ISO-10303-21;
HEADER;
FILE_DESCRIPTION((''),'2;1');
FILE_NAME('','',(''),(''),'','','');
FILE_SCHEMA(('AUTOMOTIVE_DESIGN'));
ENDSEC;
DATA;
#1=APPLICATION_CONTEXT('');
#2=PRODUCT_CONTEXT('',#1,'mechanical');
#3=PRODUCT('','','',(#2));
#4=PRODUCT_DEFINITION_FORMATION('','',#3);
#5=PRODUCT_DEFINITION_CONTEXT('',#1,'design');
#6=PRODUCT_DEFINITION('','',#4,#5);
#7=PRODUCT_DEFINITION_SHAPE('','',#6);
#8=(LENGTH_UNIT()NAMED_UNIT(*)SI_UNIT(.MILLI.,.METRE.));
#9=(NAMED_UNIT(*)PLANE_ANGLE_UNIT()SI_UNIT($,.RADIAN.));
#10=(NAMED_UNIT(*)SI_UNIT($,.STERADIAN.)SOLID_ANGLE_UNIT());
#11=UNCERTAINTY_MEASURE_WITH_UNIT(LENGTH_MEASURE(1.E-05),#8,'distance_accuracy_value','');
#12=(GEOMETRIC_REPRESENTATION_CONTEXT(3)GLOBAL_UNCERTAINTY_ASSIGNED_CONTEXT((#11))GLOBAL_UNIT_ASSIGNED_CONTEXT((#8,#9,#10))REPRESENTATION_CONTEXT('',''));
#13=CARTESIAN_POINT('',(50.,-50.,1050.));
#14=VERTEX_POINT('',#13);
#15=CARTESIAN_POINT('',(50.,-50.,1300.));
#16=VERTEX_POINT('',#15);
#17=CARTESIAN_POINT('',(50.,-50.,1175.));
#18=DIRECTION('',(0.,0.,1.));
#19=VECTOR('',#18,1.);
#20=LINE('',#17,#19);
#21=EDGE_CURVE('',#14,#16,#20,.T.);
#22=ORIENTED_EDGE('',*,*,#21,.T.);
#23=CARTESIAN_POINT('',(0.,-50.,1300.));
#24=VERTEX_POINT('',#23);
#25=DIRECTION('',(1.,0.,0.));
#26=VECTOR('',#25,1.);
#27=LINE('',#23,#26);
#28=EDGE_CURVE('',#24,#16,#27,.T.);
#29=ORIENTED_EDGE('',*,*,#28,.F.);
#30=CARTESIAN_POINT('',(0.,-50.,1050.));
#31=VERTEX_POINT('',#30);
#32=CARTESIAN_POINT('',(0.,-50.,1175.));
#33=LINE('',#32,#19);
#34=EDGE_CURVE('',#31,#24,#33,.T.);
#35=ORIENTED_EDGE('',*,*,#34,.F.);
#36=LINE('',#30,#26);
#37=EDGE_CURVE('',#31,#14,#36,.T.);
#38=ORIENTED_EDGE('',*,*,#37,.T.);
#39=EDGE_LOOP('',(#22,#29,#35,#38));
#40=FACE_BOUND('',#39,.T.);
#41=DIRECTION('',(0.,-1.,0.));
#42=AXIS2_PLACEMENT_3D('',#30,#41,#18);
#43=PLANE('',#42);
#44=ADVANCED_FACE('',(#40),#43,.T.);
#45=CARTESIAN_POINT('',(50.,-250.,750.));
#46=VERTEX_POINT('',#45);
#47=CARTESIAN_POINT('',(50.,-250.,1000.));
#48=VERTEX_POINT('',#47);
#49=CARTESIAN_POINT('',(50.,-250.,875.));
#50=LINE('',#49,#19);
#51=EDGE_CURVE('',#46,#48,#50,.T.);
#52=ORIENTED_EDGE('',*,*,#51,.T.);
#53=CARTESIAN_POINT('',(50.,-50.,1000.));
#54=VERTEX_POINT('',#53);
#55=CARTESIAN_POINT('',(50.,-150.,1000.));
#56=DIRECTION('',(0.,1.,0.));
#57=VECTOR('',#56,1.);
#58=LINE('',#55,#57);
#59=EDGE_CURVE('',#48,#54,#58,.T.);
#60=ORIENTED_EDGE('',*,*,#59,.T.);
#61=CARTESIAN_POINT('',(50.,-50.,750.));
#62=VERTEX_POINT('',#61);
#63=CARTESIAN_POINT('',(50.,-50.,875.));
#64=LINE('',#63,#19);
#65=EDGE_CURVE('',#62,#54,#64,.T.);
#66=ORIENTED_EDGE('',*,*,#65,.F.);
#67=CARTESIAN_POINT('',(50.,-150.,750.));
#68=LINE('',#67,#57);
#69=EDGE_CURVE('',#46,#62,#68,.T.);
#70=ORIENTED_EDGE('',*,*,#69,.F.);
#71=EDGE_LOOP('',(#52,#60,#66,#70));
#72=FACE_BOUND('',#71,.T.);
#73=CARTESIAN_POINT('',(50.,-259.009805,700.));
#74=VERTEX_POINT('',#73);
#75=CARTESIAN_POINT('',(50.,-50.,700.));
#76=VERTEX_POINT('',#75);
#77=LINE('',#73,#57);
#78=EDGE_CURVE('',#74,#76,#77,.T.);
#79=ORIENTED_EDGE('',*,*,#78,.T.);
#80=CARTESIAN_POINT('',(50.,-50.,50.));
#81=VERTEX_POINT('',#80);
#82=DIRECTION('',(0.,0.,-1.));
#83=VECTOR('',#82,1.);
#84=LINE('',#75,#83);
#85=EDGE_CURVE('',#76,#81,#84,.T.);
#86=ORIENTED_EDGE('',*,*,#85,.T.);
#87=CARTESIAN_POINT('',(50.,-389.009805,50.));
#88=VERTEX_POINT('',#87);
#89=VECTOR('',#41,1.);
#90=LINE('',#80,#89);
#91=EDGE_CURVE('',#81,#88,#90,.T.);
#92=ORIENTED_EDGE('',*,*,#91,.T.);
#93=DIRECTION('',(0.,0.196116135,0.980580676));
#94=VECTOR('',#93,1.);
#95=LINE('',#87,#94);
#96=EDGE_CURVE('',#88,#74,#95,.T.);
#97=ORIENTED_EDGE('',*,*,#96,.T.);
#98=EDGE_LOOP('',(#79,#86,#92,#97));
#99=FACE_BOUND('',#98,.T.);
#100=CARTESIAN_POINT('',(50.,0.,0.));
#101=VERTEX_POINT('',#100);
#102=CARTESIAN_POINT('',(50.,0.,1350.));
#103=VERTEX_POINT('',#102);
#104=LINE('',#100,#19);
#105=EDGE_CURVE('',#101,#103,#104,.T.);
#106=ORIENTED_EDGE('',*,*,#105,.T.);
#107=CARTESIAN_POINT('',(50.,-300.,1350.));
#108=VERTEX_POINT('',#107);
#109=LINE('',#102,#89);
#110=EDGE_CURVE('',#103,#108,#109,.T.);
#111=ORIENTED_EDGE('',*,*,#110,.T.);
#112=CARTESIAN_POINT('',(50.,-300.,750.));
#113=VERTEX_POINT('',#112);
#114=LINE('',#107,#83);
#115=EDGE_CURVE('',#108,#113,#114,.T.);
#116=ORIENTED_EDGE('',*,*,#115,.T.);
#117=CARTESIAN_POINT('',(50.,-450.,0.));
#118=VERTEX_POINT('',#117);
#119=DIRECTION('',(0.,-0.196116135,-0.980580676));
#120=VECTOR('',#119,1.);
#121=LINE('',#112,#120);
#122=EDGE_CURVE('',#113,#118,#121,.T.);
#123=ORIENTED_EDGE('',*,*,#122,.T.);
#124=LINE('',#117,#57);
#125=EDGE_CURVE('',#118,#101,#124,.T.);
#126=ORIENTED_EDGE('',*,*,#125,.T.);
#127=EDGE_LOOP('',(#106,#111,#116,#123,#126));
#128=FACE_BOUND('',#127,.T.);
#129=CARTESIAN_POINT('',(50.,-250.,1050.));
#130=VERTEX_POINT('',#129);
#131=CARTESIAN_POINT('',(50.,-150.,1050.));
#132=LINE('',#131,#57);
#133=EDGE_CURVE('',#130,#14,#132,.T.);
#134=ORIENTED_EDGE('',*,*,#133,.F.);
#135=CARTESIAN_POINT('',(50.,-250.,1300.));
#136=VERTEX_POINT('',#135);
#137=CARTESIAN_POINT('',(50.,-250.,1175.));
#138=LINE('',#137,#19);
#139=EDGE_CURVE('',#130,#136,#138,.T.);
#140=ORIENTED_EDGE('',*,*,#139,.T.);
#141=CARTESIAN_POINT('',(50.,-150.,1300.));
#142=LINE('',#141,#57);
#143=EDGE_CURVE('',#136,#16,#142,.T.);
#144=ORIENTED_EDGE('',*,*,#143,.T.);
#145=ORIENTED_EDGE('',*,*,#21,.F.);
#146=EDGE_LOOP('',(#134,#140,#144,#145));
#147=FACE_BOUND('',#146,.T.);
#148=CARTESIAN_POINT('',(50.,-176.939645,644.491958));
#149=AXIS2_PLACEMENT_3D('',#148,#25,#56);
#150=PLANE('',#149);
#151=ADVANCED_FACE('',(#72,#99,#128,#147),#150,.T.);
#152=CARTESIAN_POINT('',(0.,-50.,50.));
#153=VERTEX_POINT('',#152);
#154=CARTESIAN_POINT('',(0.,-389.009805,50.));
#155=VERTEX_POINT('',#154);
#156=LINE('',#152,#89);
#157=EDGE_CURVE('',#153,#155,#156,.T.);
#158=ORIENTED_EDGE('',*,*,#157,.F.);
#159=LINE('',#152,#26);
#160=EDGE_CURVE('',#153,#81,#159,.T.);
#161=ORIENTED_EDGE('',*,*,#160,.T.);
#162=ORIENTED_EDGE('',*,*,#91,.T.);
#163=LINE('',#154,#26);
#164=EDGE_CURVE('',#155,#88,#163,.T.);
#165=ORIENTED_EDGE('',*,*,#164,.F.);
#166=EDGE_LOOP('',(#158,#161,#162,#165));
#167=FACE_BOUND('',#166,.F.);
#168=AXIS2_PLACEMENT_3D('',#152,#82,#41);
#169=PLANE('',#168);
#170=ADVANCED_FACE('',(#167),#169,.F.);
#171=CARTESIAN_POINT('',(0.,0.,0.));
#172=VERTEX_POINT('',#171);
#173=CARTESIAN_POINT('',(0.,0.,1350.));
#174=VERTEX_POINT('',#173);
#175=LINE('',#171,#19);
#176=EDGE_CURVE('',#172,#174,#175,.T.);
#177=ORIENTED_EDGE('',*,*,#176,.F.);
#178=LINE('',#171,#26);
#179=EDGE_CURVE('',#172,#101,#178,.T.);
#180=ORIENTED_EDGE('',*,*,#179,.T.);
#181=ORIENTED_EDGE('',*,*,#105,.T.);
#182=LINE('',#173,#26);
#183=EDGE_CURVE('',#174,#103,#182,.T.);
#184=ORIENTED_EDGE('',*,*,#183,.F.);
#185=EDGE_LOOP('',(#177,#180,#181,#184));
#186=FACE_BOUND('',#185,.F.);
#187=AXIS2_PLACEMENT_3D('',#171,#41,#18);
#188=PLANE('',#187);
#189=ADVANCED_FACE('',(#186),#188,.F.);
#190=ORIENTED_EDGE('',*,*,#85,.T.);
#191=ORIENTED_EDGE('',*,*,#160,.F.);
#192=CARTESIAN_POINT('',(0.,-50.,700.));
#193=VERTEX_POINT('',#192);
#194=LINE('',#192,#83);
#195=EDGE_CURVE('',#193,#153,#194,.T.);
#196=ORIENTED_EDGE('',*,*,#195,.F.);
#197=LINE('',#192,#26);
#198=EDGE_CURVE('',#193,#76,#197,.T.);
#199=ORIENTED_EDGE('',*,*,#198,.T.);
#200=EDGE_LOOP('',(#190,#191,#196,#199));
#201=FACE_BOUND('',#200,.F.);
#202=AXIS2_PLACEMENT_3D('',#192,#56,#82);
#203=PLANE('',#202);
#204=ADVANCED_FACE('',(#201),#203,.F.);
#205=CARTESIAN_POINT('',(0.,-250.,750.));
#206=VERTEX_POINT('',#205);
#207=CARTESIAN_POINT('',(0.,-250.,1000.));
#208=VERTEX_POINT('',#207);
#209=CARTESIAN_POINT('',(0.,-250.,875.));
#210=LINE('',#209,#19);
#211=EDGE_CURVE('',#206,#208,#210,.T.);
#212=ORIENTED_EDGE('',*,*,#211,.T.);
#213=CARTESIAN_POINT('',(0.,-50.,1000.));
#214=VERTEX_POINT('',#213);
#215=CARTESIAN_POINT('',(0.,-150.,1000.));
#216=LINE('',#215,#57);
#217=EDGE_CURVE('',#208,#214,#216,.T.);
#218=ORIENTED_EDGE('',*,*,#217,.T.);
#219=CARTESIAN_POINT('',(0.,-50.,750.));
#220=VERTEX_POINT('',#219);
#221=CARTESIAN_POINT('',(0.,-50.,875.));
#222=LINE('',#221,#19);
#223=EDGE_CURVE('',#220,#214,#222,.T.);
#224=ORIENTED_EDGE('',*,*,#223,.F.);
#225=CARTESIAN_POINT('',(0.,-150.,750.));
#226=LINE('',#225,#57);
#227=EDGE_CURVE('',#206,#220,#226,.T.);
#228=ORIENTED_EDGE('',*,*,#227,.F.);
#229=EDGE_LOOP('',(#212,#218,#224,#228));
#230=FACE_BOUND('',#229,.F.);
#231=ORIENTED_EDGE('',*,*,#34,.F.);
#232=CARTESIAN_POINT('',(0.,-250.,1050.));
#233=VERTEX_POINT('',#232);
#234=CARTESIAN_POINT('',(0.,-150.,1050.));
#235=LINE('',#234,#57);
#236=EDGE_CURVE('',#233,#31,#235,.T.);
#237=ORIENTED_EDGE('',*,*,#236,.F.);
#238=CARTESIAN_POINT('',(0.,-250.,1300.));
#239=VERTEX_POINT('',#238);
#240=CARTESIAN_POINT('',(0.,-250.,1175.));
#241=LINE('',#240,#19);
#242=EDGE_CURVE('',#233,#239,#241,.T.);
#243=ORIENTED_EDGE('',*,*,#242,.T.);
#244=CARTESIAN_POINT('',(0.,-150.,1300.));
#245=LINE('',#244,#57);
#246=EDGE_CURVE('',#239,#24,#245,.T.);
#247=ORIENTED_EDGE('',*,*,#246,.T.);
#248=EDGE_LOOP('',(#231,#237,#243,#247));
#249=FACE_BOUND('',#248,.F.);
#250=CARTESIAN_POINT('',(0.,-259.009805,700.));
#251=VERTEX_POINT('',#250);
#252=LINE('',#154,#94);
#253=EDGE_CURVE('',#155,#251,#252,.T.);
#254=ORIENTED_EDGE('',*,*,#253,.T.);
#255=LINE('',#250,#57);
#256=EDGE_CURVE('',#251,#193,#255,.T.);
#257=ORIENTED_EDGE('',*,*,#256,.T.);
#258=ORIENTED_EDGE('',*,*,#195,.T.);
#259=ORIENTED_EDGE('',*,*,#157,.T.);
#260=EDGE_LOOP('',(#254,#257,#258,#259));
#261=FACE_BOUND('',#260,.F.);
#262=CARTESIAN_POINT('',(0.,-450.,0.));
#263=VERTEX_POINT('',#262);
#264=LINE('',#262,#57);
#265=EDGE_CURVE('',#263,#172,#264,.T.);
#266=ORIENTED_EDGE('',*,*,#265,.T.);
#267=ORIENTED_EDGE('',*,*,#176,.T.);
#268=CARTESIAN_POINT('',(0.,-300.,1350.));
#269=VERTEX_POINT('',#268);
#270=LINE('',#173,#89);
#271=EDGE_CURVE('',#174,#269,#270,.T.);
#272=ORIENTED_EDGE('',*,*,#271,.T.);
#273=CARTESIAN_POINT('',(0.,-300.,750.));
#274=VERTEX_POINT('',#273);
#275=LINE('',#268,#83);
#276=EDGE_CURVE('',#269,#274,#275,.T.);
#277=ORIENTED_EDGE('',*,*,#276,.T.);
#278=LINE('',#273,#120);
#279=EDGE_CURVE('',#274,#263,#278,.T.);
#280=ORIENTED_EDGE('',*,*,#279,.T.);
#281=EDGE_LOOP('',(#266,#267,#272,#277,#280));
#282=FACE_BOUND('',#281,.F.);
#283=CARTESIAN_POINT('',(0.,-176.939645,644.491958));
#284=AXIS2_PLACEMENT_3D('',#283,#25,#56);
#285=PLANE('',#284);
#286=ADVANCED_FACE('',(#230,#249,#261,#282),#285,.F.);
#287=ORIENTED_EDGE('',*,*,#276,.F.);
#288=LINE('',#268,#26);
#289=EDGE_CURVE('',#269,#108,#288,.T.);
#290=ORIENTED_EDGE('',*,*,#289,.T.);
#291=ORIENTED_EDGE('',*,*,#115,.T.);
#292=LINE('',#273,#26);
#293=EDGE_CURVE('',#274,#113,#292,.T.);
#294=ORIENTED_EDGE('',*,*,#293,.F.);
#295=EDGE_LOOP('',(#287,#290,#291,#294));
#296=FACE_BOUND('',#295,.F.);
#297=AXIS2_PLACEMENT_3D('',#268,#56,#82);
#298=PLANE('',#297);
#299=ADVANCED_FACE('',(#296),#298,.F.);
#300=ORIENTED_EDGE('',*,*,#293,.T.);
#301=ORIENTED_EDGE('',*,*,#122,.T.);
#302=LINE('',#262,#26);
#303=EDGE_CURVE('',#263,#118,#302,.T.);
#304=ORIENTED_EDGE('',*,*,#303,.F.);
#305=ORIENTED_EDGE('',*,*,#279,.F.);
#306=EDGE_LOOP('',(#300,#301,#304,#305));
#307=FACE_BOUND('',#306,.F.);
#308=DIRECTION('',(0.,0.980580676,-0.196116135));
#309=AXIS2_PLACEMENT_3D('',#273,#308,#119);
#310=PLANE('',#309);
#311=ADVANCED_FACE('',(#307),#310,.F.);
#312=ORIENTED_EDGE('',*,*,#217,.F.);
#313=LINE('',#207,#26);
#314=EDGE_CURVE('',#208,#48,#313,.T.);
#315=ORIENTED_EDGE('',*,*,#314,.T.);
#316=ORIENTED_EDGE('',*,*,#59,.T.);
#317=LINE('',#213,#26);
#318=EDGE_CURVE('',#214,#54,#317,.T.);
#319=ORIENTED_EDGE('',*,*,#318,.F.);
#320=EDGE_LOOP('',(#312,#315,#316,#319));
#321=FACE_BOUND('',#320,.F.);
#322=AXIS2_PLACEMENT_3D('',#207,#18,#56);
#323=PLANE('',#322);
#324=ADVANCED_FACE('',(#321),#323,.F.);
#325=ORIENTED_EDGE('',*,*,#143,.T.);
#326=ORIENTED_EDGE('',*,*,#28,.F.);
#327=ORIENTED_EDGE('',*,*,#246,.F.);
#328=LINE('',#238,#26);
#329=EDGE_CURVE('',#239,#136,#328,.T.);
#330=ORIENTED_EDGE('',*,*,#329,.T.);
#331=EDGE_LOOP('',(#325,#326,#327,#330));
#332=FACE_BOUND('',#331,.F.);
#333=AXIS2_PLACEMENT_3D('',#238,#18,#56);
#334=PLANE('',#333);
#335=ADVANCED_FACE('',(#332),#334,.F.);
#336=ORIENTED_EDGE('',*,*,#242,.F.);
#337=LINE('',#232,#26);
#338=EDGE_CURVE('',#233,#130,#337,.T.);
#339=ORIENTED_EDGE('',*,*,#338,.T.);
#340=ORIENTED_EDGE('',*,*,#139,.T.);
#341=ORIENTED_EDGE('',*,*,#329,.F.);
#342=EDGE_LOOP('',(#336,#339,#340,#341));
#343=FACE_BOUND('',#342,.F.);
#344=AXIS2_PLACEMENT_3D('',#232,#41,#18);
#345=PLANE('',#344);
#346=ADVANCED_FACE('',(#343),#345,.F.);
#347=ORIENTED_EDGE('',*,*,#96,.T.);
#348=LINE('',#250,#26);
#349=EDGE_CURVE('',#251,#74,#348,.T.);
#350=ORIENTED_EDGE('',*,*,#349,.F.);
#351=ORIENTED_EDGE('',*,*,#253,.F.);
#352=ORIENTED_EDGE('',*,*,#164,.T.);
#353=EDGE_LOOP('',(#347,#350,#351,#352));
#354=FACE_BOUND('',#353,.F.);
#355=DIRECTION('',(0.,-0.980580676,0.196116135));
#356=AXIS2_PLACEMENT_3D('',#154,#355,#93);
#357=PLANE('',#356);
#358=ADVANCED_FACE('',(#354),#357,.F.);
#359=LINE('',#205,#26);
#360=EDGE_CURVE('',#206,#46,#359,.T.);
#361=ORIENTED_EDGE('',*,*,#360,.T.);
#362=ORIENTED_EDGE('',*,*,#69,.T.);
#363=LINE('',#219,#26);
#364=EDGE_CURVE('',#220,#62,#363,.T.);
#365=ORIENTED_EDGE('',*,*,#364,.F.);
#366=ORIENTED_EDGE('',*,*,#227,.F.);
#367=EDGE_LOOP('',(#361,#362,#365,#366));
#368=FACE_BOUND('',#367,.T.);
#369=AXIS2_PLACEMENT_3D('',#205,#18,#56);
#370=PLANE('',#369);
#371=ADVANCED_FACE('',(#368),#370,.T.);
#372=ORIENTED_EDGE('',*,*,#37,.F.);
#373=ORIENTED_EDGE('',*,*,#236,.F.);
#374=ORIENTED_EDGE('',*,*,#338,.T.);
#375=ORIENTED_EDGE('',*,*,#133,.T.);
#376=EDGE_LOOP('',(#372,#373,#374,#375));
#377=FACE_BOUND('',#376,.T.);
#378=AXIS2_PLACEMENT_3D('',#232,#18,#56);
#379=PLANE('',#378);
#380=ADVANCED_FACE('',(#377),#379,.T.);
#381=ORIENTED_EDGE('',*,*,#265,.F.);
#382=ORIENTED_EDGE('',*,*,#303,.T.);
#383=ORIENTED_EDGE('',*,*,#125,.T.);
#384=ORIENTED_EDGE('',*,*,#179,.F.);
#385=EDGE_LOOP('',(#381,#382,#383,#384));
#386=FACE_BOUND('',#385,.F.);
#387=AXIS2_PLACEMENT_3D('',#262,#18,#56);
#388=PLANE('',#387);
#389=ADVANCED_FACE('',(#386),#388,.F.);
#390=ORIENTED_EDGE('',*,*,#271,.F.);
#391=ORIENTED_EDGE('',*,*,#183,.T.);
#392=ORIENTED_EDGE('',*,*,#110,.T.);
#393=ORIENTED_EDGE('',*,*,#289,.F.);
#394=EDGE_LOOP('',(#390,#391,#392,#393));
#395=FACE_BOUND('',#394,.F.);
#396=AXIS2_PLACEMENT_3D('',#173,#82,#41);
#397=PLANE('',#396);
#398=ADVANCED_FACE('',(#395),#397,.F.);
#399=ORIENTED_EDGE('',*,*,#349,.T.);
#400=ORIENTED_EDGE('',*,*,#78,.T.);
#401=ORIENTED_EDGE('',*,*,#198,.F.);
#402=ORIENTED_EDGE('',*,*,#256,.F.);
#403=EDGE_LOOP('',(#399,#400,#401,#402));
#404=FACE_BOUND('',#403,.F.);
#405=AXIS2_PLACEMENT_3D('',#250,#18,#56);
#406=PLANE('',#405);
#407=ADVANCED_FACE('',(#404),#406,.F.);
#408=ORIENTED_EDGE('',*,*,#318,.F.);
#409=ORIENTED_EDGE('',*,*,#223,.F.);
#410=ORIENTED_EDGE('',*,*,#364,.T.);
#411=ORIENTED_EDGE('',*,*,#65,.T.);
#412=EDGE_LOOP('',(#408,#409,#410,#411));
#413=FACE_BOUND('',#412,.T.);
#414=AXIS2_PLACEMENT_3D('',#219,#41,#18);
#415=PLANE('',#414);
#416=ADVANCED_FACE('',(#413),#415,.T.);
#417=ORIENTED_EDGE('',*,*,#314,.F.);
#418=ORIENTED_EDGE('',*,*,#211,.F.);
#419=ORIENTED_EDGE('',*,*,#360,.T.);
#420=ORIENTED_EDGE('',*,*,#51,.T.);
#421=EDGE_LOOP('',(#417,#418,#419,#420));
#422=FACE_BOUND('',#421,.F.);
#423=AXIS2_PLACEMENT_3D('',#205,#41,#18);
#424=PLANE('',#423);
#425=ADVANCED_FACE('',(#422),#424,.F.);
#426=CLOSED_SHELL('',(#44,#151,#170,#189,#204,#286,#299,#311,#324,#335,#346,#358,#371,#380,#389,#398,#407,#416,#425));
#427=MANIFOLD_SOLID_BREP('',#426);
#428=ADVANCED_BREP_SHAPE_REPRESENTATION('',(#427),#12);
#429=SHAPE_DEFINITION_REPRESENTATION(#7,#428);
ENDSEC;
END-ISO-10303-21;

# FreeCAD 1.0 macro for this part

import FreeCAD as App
import Part
import Sketcher
Q = App.Units.Quantity

doc = App.newDocument("Part")
body = doc.addObject("PartDesign::Body", "Body")

# Sketch on YZ plane
sketch1 = body.newObject("Sketcher::SketchObject", "Sketch")
sketch1.AttachmentSupport = (doc.getObject("YZ_Plane"), [""])
sketch1.MapMode = "FlatFace"
sketch1.addGeometry(Part.LineSegment(App.Vector(0, 0, 0), App.Vector(0, 1350, 0)), False)
sketch1.addGeometry(Part.LineSegment(App.Vector(0, 1350, 0), App.Vector(-300, 1350, 0)), False)
sketch1.addGeometry(Part.LineSegment(App.Vector(-300, 1350, 0), App.Vector(-300, 750, 0)), False)
sketch1.addGeometry(Part.LineSegment(App.Vector(-300, 750, 0), App.Vector(-450, 0, 0)), False)
sketch1.addGeometry(Part.LineSegment(App.Vector(-450, 0, 0), App.Vector(0, 0, 0)), False)
sketch1.addGeometry(Part.LineSegment(App.Vector(-50, 700, 0), App.Vector(-50, 50, 0)), False)
sketch1.addGeometry(Part.LineSegment(App.Vector(-50, 50, 0), App.Vector(-389, 50, 0)), False)
sketch1.addGeometry(Part.LineSegment(App.Vector(-389, 50, 0), App.Vector(-259, 700, 0)), False)
sketch1.addGeometry(Part.LineSegment(App.Vector(-259, 700, 0), App.Vector(-50, 700, 0)), False)
sketch1.addGeometry(Part.LineSegment(App.Vector(-50, 750, 0), App.Vector(-250, 750, 0)), False)
sketch1.addGeometry(Part.LineSegment(App.Vector(-250, 750, 0), App.Vector(-250, 1000, 0)), False)
sketch1.addGeometry(Part.LineSegment(App.Vector(-250, 1000, 0), App.Vector(-50, 1000, 0)), False)
sketch1.addGeometry(Part.LineSegment(App.Vector(-50, 1000, 0), App.Vector(-50, 750, 0)), False)
sketch1.addGeometry(Part.LineSegment(App.Vector(-50, 1050, 0), App.Vector(-250, 1050, 0)), False)
sketch1.addGeometry(Part.LineSegment(App.Vector(-250, 1050, 0), App.Vector(-250, 1300, 0)), False)
sketch1.addGeometry(Part.LineSegment(App.Vector(-250, 1300, 0), App.Vector(-50, 1300, 0)), False)
sketch1.addGeometry(Part.LineSegment(App.Vector(-50, 1300, 0), App.Vector(-50, 1050, 0)), False)
sketch1.addConstraint(Sketcher.Constraint("Coincident", 0, 2, 1, 1))
sketch1.addConstraint(Sketcher.Constraint("Coincident", 1, 2, 2, 1))
sketch1.addConstraint(Sketcher.Constraint("Coincident", 2, 2, 3, 1))
sketch1.addConstraint(Sketcher.Constraint("Coincident", 3, 2, 4, 1))
sketch1.addConstraint(Sketcher.Constraint("Coincident", 4, 2, 0, 1))
sketch1.addConstraint(Sketcher.Constraint("Coincident", 5, 2, 6, 1))
sketch1.addConstraint(Sketcher.Constraint("Coincident", 6, 2, 7, 1))
sketch1.addConstraint(Sketcher.Constraint("Coincident", 7, 2, 8, 1))
sketch1.addConstraint(Sketcher.Constraint("Coincident", 8, 2, 5, 1))
sketch1.addConstraint(Sketcher.Constraint("Coincident", 9, 2, 10, 1))
sketch1.addConstraint(Sketcher.Constraint("Coincident", 10, 2, 11, 1))
sketch1.addConstraint(Sketcher.Constraint("Coincident", 11, 2, 12, 1))
sketch1.addConstraint(Sketcher.Constraint("Coincident", 12, 2, 9, 1))
sketch1.addConstraint(Sketcher.Constraint("Coincident", 13, 2, 14, 1))
sketch1.addConstraint(Sketcher.Constraint("Coincident", 14, 2, 15, 1))
sketch1.addConstraint(Sketcher.Constraint("Coincident", 15, 2, 16, 1))
sketch1.addConstraint(Sketcher.Constraint("Coincident", 16, 2, 13, 1))
sketch1.addConstraint(Sketcher.Constraint("Vertical", 0))
sketch1.addConstraint(Sketcher.Constraint("Horizontal", 1))
sketch1.addConstraint(Sketcher.Constraint("Vertical", 2))
sketch1.addConstraint(Sketcher.Constraint("Horizontal", 4))
sketch1.addConstraint(Sketcher.Constraint("Vertical", 5))
sketch1.addConstraint(Sketcher.Constraint("Horizontal", 6))
sketch1.addConstraint(Sketcher.Constraint("Horizontal", 8))
sketch1.addConstraint(Sketcher.Constraint("Horizontal", 9))
sketch1.addConstraint(Sketcher.Constraint("Vertical", 10))
sketch1.addConstraint(Sketcher.Constraint("Horizontal", 11))
sketch1.addConstraint(Sketcher.Constraint("Vertical", 12))
sketch1.addConstraint(Sketcher.Constraint("Horizontal", 13))
sketch1.addConstraint(Sketcher.Constraint("Vertical", 14))
sketch1.addConstraint(Sketcher.Constraint("Horizontal", 15))
sketch1.addConstraint(Sketcher.Constraint("Vertical", 16))
sketch1.addConstraint(Sketcher.Constraint("Coincident", 4, 2, -1, 1))
sketch1.addConstraint(Sketcher.Constraint("Parallel", 3, 7))
sketch1.addConstraint(Sketcher.Constraint("Horizontal", 2, 2, 9, 2))
sketch1.addConstraint(Sketcher.Constraint("Vertical", 8, 2, 11, 2))
sketch1.addConstraint(Sketcher.Constraint("Vertical", 10, 2, 13, 2))
sketch1.addConstraint(Sketcher.Constraint("Vertical", 12, 2, 15, 2))
sketch1.addConstraint(Sketcher.Constraint("Equal", 12, 14))
sketch1.addConstraint(Sketcher.Constraint("DistanceX", 1, 2, 1, 1, Q("300 mm")))
sketch1.addConstraint(Sketcher.Constraint("DistanceX", 4, 1, 4, 2, Q("450 mm")))
sketch1.addConstraint(Sketcher.Constraint("DistanceX", 9, 2, 9, 1, Q("200 mm")))
sketch1.addConstraint(Sketcher.Constraint("DistanceY", 0, 1, 0, 2, Q("1350 mm")))
sketch1.addConstraint(Sketcher.Constraint("DistanceY", 2, 2, 2, 1, Q("600 mm")))
sketch1.addConstraint(Sketcher.Constraint("DistanceY", 5, 2, 5, 1, Q("650 mm")))
sketch1.addConstraint(Sketcher.Constraint("DistanceY", 10, 1, 10, 2, Q("250 mm")))
sketch1.addConstraint(Sketcher.Constraint("DistanceX", 5, 2, -1, 1, Q("50 mm")))
sketch1.addConstraint(Sketcher.Constraint("DistanceY", -1, 1, 5, 2, Q("50 mm")))
sketch1.addConstraint(Sketcher.Constraint("DistanceY", -1, 1, 13, 2, Q("1050 mm")))
sketch1.addConstraint(Sketcher.Constraint("DistanceX", 6, 2, 6, 1, Q("339.009805 mm")))
pad1 = body.newObject("PartDesign::Pad", "Pad")
pad1.Profile = sketch1
pad1.Length = 50

doc.recompute()
